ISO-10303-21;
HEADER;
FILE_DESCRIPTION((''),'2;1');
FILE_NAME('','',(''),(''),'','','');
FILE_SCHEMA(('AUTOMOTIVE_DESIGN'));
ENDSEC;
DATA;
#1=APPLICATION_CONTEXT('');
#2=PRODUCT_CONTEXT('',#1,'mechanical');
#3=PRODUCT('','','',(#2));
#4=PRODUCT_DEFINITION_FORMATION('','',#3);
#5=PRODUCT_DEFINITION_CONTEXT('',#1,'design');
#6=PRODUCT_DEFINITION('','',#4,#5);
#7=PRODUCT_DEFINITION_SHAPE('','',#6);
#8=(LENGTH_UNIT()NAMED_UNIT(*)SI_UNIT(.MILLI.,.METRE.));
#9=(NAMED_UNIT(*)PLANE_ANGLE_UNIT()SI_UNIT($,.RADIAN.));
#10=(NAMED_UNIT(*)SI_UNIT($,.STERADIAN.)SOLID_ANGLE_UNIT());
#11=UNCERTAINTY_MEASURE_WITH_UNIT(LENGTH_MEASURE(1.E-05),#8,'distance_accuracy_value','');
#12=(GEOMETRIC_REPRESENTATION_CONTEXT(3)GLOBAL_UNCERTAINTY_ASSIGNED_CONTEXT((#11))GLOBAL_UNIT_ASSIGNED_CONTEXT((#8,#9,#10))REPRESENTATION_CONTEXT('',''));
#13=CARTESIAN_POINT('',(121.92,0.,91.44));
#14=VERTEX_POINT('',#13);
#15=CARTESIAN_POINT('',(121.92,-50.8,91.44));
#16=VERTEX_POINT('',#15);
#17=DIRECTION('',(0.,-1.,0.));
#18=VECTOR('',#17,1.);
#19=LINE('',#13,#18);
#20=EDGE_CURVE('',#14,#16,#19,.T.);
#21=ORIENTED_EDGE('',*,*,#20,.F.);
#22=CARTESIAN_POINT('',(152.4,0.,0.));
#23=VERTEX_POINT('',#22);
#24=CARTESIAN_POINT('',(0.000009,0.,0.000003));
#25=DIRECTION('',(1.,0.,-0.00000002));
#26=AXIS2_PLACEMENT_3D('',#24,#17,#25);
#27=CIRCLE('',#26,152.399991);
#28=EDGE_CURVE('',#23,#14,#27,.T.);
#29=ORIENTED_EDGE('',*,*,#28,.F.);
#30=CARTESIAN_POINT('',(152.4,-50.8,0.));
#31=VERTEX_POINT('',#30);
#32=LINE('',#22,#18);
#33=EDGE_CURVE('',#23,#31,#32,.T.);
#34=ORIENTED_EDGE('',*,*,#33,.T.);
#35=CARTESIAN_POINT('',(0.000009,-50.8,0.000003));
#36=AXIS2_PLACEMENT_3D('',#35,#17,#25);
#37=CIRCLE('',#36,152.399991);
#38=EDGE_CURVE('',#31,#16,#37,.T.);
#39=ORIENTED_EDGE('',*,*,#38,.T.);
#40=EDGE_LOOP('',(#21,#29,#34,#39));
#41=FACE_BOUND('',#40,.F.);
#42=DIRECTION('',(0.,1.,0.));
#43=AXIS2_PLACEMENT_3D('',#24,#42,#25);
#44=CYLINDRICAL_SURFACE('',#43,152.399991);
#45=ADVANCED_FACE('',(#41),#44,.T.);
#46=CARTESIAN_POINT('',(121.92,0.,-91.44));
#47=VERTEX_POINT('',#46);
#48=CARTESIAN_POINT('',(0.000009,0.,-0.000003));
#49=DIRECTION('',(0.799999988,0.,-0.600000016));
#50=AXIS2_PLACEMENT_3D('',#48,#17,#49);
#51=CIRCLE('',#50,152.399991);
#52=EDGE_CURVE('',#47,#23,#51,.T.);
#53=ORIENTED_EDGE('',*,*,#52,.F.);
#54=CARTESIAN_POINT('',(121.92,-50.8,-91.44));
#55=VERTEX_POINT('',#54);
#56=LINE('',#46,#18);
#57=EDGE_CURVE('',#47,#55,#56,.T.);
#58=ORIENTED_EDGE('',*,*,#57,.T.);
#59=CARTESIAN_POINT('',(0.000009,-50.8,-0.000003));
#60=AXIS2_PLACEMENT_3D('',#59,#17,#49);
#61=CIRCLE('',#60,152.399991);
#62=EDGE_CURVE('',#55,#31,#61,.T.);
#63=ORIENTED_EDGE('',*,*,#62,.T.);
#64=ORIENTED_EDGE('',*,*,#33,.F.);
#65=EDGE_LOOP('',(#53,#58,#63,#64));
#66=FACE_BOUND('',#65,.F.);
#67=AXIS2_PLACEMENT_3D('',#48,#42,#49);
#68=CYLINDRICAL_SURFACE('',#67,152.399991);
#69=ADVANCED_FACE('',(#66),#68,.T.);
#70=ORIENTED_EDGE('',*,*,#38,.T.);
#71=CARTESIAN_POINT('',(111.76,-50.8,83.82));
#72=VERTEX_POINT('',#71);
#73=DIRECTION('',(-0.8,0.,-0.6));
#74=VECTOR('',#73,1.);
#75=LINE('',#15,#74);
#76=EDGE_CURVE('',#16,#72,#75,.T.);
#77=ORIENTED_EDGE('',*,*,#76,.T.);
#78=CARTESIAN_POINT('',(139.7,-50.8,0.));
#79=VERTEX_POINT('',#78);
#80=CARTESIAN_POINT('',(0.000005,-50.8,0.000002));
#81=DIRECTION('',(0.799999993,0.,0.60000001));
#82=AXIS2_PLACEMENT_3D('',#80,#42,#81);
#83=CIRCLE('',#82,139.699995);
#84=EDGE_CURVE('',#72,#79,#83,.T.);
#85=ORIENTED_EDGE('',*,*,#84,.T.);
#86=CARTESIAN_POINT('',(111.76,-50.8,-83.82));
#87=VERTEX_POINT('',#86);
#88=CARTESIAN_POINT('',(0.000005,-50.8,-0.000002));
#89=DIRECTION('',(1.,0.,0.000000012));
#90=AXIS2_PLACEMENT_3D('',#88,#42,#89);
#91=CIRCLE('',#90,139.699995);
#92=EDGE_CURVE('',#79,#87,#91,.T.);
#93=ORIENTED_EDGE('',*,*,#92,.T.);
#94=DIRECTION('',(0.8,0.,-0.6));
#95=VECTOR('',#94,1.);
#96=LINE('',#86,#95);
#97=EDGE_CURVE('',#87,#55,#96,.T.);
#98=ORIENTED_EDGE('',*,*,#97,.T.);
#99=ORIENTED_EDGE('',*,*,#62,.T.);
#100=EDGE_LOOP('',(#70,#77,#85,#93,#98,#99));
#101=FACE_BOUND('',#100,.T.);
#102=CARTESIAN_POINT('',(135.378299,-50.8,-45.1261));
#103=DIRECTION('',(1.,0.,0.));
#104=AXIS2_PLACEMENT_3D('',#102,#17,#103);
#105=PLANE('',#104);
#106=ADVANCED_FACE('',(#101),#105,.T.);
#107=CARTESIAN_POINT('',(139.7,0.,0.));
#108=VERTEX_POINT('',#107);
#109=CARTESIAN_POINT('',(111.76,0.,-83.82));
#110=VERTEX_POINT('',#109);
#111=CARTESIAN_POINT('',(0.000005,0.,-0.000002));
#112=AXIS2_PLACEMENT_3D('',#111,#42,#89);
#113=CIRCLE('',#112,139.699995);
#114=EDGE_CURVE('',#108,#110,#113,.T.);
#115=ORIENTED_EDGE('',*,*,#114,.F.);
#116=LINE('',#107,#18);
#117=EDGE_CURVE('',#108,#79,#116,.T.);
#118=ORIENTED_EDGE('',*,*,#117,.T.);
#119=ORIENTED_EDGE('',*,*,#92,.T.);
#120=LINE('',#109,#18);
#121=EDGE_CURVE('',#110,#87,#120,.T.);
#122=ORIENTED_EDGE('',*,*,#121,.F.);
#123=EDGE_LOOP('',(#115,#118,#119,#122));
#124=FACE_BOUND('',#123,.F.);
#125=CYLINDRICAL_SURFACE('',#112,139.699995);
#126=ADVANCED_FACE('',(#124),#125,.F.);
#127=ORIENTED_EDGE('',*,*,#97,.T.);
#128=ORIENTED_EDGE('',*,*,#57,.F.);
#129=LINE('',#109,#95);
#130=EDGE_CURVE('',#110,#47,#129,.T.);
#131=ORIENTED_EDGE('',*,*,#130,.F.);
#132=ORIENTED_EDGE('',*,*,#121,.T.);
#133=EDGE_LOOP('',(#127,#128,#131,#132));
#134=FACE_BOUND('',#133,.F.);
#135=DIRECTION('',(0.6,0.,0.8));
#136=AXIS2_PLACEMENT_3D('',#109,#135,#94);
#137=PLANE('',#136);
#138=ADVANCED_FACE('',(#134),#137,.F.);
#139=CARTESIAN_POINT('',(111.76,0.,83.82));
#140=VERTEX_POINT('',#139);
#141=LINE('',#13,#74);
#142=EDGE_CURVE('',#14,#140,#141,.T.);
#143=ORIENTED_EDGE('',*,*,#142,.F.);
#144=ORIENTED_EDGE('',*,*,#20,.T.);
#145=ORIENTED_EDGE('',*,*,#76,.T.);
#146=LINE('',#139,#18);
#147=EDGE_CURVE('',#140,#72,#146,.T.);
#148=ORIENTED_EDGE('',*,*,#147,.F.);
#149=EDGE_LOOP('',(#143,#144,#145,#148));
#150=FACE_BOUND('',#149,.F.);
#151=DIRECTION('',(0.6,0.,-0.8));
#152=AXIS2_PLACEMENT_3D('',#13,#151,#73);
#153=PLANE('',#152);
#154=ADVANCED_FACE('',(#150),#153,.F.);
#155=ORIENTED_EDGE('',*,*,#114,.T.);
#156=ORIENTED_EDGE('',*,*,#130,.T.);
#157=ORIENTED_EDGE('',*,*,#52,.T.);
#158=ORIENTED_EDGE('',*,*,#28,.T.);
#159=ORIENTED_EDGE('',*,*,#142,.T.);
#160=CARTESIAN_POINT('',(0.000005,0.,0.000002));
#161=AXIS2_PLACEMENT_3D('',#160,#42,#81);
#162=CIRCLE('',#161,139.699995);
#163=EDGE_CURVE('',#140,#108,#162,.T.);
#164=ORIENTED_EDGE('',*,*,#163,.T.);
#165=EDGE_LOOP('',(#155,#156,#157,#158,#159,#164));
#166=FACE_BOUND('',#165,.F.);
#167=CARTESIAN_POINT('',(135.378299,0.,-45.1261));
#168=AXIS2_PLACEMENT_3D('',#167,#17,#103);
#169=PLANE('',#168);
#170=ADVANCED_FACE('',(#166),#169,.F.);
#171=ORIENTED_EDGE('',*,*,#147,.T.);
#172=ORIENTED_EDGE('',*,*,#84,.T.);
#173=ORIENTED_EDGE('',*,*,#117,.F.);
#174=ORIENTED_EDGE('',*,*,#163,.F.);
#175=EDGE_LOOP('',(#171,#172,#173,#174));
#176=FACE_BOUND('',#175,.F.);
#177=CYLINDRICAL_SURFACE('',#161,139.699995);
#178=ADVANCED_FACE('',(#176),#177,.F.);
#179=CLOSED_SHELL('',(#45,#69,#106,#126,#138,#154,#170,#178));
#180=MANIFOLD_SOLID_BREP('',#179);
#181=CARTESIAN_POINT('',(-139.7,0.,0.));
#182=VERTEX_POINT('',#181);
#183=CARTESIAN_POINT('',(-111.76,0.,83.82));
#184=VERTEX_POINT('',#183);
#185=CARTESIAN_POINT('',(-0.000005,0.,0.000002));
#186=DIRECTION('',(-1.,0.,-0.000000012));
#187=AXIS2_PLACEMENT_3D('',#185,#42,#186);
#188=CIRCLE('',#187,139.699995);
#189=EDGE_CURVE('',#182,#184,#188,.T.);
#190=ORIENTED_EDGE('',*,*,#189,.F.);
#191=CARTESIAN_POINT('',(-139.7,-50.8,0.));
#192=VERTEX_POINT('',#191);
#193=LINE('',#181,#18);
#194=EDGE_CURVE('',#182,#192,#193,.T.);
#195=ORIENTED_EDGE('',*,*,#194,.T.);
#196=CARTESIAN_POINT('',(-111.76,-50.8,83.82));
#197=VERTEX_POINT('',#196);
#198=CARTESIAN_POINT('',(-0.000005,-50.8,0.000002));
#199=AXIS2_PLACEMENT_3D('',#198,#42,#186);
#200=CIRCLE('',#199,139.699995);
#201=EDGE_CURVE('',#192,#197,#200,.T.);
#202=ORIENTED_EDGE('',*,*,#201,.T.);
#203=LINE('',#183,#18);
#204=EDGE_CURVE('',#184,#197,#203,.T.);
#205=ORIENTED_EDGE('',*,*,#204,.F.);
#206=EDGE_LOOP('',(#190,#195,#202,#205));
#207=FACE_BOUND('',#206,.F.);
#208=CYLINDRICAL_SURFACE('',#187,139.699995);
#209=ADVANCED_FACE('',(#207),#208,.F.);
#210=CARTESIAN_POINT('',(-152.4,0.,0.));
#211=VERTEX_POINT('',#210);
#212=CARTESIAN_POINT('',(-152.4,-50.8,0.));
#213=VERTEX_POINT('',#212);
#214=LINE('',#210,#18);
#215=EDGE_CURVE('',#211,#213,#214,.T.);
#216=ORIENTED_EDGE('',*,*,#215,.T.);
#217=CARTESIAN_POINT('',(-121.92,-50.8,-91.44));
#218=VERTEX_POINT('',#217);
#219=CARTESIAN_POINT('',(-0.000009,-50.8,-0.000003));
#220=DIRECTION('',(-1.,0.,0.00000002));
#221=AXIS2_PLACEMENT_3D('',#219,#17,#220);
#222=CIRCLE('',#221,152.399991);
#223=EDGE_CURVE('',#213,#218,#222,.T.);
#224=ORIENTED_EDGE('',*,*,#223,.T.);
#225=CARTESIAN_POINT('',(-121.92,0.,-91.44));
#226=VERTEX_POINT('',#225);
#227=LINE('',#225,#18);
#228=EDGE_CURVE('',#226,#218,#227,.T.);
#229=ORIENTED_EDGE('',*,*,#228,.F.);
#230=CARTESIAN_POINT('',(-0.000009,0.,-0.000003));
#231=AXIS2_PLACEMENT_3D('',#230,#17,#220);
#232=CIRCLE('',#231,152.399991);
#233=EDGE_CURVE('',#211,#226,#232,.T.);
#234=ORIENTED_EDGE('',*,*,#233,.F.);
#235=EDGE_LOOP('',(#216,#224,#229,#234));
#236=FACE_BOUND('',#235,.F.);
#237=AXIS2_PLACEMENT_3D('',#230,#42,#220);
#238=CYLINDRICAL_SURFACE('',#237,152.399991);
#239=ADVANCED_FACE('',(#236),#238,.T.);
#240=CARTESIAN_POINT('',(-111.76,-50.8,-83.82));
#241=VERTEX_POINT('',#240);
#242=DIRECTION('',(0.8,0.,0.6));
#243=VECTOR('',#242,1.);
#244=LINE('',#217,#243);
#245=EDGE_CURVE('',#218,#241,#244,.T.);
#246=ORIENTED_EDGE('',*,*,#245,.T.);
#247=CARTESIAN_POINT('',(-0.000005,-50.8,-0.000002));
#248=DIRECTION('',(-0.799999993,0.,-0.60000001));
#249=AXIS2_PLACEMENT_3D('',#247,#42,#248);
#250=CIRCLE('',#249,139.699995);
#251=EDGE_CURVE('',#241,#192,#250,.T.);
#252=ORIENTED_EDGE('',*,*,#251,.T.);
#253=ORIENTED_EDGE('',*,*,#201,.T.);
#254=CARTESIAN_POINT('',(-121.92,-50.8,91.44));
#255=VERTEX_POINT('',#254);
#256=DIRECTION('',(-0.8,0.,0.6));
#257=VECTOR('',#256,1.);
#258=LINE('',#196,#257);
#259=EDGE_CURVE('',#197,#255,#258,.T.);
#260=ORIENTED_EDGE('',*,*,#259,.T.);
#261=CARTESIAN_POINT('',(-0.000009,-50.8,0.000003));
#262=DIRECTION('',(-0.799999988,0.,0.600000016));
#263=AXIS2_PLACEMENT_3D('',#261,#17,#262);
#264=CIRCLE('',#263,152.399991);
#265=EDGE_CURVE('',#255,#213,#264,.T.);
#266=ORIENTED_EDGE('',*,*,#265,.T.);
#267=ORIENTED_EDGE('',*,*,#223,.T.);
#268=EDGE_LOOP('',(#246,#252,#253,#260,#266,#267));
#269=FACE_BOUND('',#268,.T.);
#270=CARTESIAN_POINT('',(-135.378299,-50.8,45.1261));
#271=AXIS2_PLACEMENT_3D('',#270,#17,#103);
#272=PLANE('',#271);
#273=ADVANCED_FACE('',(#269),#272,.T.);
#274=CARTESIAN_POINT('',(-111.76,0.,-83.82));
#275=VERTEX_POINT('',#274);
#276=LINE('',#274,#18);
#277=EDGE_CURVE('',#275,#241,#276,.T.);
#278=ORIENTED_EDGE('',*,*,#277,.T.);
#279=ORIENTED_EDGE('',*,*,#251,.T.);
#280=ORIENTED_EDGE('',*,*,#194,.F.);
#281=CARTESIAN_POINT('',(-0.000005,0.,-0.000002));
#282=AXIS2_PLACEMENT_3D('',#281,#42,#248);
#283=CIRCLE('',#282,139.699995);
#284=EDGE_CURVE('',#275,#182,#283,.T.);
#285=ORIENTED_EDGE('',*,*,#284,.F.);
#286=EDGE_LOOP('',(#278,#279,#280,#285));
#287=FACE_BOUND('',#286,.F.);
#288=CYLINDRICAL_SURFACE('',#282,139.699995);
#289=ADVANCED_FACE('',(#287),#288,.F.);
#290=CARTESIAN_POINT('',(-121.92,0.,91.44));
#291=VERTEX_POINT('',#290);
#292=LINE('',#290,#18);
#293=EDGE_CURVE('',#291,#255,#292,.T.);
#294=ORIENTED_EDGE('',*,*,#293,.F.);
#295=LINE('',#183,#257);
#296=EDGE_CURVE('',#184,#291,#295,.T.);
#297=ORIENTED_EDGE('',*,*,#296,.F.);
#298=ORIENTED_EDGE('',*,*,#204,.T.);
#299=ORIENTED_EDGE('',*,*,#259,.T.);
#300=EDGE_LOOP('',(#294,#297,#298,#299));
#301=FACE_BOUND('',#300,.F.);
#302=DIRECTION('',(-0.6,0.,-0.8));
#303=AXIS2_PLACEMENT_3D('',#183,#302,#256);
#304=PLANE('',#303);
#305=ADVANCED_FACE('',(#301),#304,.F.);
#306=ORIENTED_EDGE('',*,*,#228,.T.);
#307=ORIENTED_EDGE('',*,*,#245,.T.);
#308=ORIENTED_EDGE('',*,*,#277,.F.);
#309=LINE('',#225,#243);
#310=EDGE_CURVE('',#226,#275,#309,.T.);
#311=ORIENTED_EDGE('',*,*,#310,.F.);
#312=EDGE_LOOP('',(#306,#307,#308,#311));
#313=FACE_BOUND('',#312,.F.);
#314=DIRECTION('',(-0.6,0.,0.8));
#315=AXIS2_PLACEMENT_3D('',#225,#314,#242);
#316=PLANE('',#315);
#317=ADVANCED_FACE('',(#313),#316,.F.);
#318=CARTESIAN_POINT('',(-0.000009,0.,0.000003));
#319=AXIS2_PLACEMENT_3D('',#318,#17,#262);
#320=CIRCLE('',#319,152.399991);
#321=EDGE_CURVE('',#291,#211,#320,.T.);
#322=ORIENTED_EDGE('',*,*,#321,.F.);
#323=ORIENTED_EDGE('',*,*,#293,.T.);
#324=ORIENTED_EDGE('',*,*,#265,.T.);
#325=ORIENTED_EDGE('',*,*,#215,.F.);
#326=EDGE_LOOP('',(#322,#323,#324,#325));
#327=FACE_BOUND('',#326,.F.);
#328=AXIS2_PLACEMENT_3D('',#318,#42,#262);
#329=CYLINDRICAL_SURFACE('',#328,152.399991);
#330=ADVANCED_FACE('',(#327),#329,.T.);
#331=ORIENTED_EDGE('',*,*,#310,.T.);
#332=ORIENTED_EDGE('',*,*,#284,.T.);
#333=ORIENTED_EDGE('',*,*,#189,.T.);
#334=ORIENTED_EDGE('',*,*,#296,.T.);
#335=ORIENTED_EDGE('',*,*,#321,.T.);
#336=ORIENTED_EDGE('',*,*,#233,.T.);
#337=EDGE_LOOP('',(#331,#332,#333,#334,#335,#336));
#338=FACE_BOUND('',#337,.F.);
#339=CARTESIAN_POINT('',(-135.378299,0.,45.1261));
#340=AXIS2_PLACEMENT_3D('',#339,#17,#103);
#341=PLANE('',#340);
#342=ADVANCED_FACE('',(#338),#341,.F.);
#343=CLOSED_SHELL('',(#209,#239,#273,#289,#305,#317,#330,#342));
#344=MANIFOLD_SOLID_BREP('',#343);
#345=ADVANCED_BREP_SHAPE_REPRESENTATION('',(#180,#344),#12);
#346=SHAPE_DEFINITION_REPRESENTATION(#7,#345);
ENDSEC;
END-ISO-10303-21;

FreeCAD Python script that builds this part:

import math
import FreeCAD as App
import Part
import Sketcher

V = App.Vector
Q = App.Units.Quantity

doc = App.newDocument("Part")
body = doc.addObject("PartDesign::Body", "Body")
body.AllowCompound = True

# Sketch on XZ plane
sketch1 = body.newObject("Sketcher::SketchObject", "Sketch")
sketch1.AttachmentSupport = (doc.getObject("XZ_Plane"), [""])
sketch1.MapMode = "FlatFace"
sketch1.addGeometry([
    Part.ArcOfCircle(Part.Circle(V(0, 0, 0), V(0, 0, 1), 140), math.radians(-37), math.radians(0)),  # 0
    Part.LineSegment(V(112, -84, 0), V(122, -91, 0)),  # 1
    Part.ArcOfCircle(Part.Circle(V(0, 0, 0), V(0, 0, 1), 152), math.radians(-37), math.radians(0)),  # 2
    Part.ArcOfCircle(Part.Circle(V(0, 0, 0), V(0, 0, 1), 152), math.radians(0), math.radians(37)),  # 3
    Part.LineSegment(V(122, 91, 0), V(112, 84, 0)),  # 4
    Part.ArcOfCircle(Part.Circle(V(0, 0, 0), V(0, 0, 1), 140), math.radians(0), math.radians(37)),  # 5
    Part.ArcOfCircle(Part.Circle(V(0, 0, 0), V(0, 0, 1), 152), math.radians(143), math.radians(180)),  # 6
    Part.ArcOfCircle(Part.Circle(V(0, 0, 0), V(0, 0, 1), 152), math.radians(180), math.radians(217)),  # 7
    Part.LineSegment(V(-122, -91, 0), V(-112, -84, 0)),  # 8
    Part.ArcOfCircle(Part.Circle(V(0, 0, 0), V(0, 0, 1), 140), math.radians(180), math.radians(217)),  # 9
    Part.ArcOfCircle(Part.Circle(V(0, 0, 0), V(0, 0, 1), 140), math.radians(143), math.radians(180)),  # 10
    Part.LineSegment(V(-112, 84, 0), V(-122, 91, 0)),  # 11
], False)
sketch1.addConstraint([
    Sketcher.Constraint("Coincident", 0, 1, 1, 1),
    Sketcher.Constraint("Coincident", 1, 2, 2, 1),
    Sketcher.Constraint("Tangent", 2, 2, 3, 1),
    Sketcher.Constraint("Coincident", 3, 2, 4, 1),
    Sketcher.Constraint("Coincident", 4, 2, 5, 2),
    Sketcher.Constraint("Tangent", 5, 1, 0, 2),
    Sketcher.Constraint("Tangent", 6, 2, 7, 1),
    Sketcher.Constraint("Coincident", 7, 2, 8, 1),
    Sketcher.Constraint("Coincident", 8, 2, 9, 2),
    Sketcher.Constraint("Tangent", 9, 1, 10, 2),
    Sketcher.Constraint("Coincident", 10, 1, 11, 1),
    Sketcher.Constraint("Coincident", 11, 2, 6, 1),
    Sketcher.Constraint("Coincident", 0, 3, -1, 1),
    Sketcher.Constraint("Coincident", 2, 3, -1, 1),
    Sketcher.Constraint("Coincident", 6, 3, -1, 1),
    Sketcher.Constraint("Coincident", 9, 3, -1, 1),
    Sketcher.Constraint("Equal", 2, 3),
    Sketcher.Constraint("Equal", 0, 5),
    Sketcher.Constraint("Equal", 3, 6),
    Sketcher.Constraint("Equal", 6, 7),
    Sketcher.Constraint("Equal", 5, 9),
    Sketcher.Constraint("Equal", 9, 10),
    Sketcher.Constraint("PointOnObject", 2, 2, -1),
    Sketcher.Constraint("PointOnObject", 5, 1, -1),
    Sketcher.Constraint("PointOnObject", 6, 2, -1),
    Sketcher.Constraint("PointOnObject", 9, 1, -1),
    Sketcher.Constraint("Parallel", 4, 8),
    Sketcher.Constraint("Parallel", 1, 11),
    Sketcher.Constraint("Horizontal", 1, 2, 7, 2),
    Sketcher.Constraint("Horizontal", 0, 1, 8, 2),
    Sketcher.Constraint("Horizontal", 4, 2, 10, 1),
    Sketcher.Constraint("Vertical", 1, 2, 3, 2),
    Sketcher.Constraint("DistanceX", -1, 1, 2, 2, Q("6 in")),
    Sketcher.Constraint("Distance", 1, Q("0.5 in")),
    Sketcher.Constraint("DistanceX", -1, 1, 0, 1, Q("4.4 in")),
    Sketcher.Constraint("DistanceX", -1, 1, 1, 2, Q("4.8 in")),
])
pad1 = body.newObject("PartDesign::Pad", "Pad")
pad1.Profile = sketch1
pad1.Length = Q("2 in")

doc.recompute()
